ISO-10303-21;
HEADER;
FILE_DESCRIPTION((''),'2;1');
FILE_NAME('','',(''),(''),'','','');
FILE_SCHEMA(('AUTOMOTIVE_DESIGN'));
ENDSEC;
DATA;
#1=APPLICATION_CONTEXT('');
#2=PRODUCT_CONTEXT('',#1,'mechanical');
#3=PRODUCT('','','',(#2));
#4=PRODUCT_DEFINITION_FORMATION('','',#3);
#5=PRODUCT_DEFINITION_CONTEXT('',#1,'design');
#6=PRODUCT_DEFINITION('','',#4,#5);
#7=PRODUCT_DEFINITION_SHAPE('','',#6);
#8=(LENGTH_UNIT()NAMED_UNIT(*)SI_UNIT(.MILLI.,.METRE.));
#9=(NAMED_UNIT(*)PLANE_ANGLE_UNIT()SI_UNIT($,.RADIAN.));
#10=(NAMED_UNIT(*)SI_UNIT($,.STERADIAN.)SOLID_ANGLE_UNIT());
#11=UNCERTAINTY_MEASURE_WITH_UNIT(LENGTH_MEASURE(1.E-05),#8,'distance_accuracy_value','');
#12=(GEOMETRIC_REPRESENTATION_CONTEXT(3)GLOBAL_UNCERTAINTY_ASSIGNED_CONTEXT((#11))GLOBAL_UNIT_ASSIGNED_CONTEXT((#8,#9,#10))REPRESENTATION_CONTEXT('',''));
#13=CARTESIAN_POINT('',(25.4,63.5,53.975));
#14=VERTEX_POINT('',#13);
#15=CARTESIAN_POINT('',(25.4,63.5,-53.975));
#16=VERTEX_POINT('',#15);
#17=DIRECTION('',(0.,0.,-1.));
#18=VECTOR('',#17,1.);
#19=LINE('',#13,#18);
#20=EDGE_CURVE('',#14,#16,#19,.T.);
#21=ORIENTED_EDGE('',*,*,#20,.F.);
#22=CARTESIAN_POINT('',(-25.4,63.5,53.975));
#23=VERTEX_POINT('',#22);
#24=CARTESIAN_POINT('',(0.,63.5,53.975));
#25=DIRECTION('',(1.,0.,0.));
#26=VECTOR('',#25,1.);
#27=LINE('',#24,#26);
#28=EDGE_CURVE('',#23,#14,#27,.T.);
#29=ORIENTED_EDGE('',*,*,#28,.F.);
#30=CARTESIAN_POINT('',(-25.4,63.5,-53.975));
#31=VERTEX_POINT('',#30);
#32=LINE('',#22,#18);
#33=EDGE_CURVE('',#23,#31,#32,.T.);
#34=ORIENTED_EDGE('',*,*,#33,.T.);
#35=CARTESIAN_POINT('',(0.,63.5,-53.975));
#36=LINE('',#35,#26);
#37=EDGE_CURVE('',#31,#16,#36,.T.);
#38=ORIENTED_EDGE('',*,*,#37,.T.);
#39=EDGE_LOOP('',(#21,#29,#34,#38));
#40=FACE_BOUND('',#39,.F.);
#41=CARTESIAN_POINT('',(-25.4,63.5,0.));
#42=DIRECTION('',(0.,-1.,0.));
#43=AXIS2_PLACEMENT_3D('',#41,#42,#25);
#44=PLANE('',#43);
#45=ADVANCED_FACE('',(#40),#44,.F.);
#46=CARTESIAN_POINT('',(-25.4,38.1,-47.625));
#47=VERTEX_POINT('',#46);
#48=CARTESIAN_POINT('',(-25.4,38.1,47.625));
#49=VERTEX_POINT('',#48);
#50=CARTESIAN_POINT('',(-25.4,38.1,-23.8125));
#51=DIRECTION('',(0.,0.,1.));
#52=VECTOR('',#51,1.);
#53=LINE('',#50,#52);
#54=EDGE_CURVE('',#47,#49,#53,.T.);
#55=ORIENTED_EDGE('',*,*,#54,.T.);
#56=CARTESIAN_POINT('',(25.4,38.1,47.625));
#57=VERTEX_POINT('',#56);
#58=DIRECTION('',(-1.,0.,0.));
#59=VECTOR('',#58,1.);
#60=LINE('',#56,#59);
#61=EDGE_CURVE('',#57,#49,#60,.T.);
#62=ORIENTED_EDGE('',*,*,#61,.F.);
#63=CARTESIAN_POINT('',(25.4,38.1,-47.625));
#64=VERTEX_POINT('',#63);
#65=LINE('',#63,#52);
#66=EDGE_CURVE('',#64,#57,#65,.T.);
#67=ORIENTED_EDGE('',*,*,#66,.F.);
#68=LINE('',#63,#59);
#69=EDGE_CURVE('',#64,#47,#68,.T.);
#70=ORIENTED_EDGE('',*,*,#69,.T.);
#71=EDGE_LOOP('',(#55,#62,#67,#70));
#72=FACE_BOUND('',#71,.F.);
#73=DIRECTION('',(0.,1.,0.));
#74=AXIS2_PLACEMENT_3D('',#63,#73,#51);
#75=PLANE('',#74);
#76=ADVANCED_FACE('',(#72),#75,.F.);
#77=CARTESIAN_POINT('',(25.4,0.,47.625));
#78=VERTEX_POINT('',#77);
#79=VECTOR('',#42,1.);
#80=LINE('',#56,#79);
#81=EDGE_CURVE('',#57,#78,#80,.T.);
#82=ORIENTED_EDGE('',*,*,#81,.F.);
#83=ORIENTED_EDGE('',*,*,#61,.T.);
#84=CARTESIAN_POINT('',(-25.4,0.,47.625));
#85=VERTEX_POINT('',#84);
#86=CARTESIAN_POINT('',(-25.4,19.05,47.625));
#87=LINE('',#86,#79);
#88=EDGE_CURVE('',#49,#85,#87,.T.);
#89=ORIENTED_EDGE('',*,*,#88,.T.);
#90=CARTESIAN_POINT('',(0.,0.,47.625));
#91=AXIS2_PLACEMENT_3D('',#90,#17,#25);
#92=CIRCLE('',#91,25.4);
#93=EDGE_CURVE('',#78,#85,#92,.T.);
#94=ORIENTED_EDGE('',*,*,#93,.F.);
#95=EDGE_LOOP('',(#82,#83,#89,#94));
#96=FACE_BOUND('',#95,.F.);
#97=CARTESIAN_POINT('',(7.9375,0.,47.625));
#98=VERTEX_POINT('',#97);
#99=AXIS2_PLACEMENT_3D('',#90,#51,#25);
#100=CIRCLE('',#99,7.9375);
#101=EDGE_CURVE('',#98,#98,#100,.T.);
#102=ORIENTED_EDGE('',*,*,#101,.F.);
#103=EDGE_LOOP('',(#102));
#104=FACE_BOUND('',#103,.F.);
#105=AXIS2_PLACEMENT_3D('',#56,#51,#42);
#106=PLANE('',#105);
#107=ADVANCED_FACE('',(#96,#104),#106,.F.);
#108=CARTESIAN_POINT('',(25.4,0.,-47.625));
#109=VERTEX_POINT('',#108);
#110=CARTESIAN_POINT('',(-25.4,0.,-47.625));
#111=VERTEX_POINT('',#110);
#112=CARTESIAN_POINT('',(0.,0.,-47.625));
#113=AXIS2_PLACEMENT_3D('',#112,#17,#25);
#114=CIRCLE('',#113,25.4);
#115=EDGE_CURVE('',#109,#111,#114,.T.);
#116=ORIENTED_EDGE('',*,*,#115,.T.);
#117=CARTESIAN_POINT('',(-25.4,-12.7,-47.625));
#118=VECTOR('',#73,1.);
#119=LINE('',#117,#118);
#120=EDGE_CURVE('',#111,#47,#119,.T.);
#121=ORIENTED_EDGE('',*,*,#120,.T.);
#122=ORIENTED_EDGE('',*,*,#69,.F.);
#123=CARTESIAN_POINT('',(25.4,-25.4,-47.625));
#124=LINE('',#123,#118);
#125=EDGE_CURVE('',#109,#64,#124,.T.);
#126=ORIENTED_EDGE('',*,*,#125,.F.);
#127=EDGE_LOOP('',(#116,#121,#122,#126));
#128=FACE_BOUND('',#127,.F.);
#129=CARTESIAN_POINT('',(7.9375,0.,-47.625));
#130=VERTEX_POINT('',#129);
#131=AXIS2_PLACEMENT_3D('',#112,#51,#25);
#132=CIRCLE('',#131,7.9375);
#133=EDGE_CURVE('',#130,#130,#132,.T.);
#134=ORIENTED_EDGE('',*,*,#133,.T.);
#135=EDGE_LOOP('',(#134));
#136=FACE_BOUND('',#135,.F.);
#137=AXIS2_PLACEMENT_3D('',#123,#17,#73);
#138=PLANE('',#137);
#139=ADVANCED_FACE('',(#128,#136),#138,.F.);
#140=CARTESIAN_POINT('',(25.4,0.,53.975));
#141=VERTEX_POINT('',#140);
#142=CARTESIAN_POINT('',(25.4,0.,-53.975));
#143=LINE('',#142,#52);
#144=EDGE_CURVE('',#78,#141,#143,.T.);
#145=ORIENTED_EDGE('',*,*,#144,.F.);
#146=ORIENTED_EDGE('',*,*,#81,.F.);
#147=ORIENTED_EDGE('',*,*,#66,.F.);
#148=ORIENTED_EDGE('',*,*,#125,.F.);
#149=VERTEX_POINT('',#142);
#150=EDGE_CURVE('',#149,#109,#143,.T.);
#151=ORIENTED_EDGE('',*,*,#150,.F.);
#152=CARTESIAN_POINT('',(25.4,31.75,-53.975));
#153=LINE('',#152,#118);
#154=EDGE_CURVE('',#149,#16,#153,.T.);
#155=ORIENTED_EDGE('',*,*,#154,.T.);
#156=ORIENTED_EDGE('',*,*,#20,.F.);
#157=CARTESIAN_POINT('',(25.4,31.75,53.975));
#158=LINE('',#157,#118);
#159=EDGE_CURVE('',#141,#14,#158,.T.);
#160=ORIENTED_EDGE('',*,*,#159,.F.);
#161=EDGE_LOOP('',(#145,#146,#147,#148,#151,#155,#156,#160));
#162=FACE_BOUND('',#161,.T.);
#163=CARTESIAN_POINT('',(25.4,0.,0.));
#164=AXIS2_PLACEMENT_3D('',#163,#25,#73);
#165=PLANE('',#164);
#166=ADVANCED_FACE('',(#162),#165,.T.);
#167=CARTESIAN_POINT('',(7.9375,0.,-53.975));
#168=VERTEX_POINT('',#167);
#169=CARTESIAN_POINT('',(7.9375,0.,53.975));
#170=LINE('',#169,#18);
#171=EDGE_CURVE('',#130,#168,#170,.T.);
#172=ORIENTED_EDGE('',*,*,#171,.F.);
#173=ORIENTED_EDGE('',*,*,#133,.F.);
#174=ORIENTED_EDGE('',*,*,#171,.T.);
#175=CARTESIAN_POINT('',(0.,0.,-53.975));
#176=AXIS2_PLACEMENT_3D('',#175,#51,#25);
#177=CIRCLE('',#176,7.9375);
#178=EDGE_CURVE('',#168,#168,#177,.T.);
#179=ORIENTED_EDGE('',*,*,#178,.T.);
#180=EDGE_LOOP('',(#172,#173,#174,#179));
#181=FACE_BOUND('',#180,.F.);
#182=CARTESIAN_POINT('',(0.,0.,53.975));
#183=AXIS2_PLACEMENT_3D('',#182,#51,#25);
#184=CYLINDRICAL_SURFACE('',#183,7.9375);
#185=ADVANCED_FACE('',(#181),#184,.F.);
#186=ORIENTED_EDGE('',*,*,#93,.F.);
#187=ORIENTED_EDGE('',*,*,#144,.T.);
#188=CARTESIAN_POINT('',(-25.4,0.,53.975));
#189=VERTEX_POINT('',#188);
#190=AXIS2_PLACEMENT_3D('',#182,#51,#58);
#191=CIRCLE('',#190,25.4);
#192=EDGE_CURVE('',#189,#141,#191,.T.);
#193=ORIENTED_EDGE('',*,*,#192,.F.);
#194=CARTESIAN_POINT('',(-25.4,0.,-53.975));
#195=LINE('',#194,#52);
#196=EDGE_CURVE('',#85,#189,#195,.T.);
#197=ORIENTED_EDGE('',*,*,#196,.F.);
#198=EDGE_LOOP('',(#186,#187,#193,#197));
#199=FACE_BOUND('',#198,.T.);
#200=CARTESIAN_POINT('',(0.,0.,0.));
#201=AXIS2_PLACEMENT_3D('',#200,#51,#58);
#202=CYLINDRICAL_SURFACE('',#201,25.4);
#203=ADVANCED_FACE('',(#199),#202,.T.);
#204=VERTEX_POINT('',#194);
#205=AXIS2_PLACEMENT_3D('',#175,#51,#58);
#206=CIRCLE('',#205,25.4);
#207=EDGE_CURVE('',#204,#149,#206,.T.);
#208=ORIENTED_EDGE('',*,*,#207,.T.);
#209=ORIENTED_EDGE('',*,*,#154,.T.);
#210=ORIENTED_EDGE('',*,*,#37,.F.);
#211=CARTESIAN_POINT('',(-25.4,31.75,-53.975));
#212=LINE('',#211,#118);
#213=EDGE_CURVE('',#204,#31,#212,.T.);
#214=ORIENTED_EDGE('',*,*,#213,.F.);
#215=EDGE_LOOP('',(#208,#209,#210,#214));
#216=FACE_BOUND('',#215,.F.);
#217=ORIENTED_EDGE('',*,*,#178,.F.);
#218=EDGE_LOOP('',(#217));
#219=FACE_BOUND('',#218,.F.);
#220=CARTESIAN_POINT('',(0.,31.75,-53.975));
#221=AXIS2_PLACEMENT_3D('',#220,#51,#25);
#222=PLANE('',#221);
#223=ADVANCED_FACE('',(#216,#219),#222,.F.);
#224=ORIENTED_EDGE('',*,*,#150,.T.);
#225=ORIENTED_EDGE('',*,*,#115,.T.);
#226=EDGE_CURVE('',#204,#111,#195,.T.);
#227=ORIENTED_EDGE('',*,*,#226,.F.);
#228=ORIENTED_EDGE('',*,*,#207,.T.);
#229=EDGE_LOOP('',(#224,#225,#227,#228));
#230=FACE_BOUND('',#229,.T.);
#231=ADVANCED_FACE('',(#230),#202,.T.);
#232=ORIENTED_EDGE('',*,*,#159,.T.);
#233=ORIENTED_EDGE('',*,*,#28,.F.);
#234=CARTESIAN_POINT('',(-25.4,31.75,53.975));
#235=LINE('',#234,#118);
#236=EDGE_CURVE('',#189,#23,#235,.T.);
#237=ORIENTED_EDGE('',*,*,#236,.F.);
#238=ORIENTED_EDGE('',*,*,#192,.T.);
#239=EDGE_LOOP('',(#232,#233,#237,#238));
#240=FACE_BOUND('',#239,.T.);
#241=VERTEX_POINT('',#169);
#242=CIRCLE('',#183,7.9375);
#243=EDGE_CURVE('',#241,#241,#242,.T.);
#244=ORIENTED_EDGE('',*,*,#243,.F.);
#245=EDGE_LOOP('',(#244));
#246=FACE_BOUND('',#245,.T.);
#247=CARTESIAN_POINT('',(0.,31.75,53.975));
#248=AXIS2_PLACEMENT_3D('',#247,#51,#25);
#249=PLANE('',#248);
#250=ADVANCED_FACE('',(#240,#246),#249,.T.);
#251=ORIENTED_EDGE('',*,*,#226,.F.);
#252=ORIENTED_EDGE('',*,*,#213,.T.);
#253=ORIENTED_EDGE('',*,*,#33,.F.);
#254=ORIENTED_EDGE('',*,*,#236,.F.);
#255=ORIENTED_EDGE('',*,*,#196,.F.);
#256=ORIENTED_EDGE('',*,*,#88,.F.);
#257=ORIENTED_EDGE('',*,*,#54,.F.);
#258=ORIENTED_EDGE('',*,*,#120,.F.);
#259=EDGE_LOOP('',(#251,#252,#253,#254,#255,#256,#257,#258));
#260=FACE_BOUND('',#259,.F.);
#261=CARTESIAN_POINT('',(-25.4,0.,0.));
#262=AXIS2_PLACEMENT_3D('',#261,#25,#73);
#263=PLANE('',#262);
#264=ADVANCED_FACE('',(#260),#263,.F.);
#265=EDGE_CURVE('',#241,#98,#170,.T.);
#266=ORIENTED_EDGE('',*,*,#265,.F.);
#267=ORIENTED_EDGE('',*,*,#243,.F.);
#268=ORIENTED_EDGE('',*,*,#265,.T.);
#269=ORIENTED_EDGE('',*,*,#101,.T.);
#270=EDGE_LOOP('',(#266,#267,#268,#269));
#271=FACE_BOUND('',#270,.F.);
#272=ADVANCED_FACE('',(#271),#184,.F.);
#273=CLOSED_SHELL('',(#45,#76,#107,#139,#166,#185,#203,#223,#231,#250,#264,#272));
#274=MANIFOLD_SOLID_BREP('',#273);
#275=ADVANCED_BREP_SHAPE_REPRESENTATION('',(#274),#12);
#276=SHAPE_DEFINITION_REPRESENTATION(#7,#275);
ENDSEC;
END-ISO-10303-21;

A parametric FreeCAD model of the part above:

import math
import FreeCAD as App
import Part
import Sketcher
from FreeCAD import Vector
Q = App.Units.Quantity

doc = App.newDocument("Part")
body = doc.addObject("PartDesign::Body", "Body")

# Sketch on XY plane
sketch1 = doc.addObject("Sketcher::SketchObject", "Sketch")
body.addObject(sketch1)
sketch1.AttachmentSupport = (doc.XY_Plane, [""])
sketch1.MapMode = "FlatFace"
sketch1.addGeometry(Part.LineSegment(Vector(-25, 64, 0), Vector(-25, 0, 0)), False)
sketch1.addGeometry(Part.ArcOfCircle(Part.Circle(Vector(0, 0, 0), Vector(0, 0, 1), 25), math.radians(180), math.radians(360)), False)
sketch1.addGeometry(Part.LineSegment(Vector(25, 0, 0), Vector(25, 64, 0)), False)
sketch1.addGeometry(Part.LineSegment(Vector(25, 64, 0), Vector(-25, 64, 0)), False)
sketch1.addConstraint(Sketcher.Constraint("Tangent", 0, 2, 1, 1))
sketch1.addConstraint(Sketcher.Constraint("Tangent", 1, 2, 2, 1))
sketch1.addConstraint(Sketcher.Constraint("Coincident", 2, 2, 3, 1))
sketch1.addConstraint(Sketcher.Constraint("Coincident", 3, 2, 0, 1))
sketch1.addConstraint(Sketcher.Constraint("Vertical", 0))
sketch1.addConstraint(Sketcher.Constraint("Vertical", 2))
sketch1.addConstraint(Sketcher.Constraint("Horizontal", 3))
sketch1.addConstraint(Sketcher.Constraint("Coincident", 1, 3, -1, 1))
sketch1.addConstraint(Sketcher.Constraint("Radius", 1, Q("1 in")))
sketch1.addConstraint(Sketcher.Constraint("DistanceY", 0, 2, 0, 1, Q("2.5 in")))
pad1 = doc.addObject("PartDesign::Pad", "Pad")
body.addObject(pad1)
pad1.Profile = sketch1
pad1.Length = Q("4.25 in")
pad1.Midplane = True

# Sketch on YZ plane
sketch2 = doc.addObject("Sketcher::SketchObject", "Sketch001")
body.addObject(sketch2)
sketch2.AttachmentSupport = (doc.YZ_Plane, [""])
sketch2.MapMode = "FlatFace"
sketch2.AttachmentOffset = App.Placement(Vector(0, 0, 1 * 25.4), App.Rotation())
sketch2.addGeometry(Part.LineSegment(Vector(-25, 48, 0), Vector(-25, -48, 0)), False)
sketch2.addGeometry(Part.LineSegment(Vector(-25, -48, 0), Vector(38, -48, 0)), False)
sketch2.addGeometry(Part.LineSegment(Vector(38, -48, 0), Vector(38, 48, 0)), False)
sketch2.addGeometry(Part.LineSegment(Vector(38, 48, 0), Vector(-25, 48, 0)), False)
sketch2.addConstraint(Sketcher.Constraint("Coincident", 0, 2, 1, 1))
sketch2.addConstraint(Sketcher.Constraint("Coincident", 1, 2, 2, 1))
sketch2.addConstraint(Sketcher.Constraint("Coincident", 2, 2, 3, 1))
sketch2.addConstraint(Sketcher.Constraint("Coincident", 3, 2, 0, 1))
sketch2.addConstraint(Sketcher.Constraint("Vertical", 0))
sketch2.addConstraint(Sketcher.Constraint("Horizontal", 1))
sketch2.addConstraint(Sketcher.Constraint("Vertical", 2))
sketch2.addConstraint(Sketcher.Constraint("Horizontal", 3))
sketch2.addConstraint(Sketcher.Constraint("DistanceX", 1, 1, 1, 2, Q("2.5 in")))
sketch2.addConstraint(Sketcher.Constraint("DistanceX", 0, 2, -1, 1, Q("1 in")))
sketch2.addConstraint(Sketcher.Constraint("DistanceY", 0, 2, 0, 1, Q("3.75 in")))
sketch2.addConstraint(Sketcher.Constraint("DistanceY", 0, 2, -1, 1, Q("1.875 in")))
pocket1 = doc.addObject("PartDesign::Pocket", "Pocket")
body.addObject(pocket1)
pocket1.Profile = sketch2
pocket1.Type = "ThroughAll"

# Sketch on XY plane
sketch3 = doc.addObject("Sketcher::SketchObject", "Sketch002")
body.addObject(sketch3)
sketch3.AttachmentSupport = (doc.XY_Plane, [""])
sketch3.MapMode = "FlatFace"
sketch3.AttachmentOffset = App.Placement(Vector(0, 0, 2.125 * 25.4), App.Rotation())
sketch3.addGeometry(Part.Circle(Vector(0, 0, 0), Vector(0, 0, 1), 8), False)
sketch3.addConstraint(Sketcher.Constraint("Coincident", 0, 3, -1, 1))
sketch3.addConstraint(Sketcher.Constraint("Diameter", 0, Q("0.625 in")))
pocket2 = doc.addObject("PartDesign::Pocket", "Pocket001")
body.addObject(pocket2)
pocket2.Profile = sketch3
pocket2.Type = "ThroughAll"

doc.recompute()
